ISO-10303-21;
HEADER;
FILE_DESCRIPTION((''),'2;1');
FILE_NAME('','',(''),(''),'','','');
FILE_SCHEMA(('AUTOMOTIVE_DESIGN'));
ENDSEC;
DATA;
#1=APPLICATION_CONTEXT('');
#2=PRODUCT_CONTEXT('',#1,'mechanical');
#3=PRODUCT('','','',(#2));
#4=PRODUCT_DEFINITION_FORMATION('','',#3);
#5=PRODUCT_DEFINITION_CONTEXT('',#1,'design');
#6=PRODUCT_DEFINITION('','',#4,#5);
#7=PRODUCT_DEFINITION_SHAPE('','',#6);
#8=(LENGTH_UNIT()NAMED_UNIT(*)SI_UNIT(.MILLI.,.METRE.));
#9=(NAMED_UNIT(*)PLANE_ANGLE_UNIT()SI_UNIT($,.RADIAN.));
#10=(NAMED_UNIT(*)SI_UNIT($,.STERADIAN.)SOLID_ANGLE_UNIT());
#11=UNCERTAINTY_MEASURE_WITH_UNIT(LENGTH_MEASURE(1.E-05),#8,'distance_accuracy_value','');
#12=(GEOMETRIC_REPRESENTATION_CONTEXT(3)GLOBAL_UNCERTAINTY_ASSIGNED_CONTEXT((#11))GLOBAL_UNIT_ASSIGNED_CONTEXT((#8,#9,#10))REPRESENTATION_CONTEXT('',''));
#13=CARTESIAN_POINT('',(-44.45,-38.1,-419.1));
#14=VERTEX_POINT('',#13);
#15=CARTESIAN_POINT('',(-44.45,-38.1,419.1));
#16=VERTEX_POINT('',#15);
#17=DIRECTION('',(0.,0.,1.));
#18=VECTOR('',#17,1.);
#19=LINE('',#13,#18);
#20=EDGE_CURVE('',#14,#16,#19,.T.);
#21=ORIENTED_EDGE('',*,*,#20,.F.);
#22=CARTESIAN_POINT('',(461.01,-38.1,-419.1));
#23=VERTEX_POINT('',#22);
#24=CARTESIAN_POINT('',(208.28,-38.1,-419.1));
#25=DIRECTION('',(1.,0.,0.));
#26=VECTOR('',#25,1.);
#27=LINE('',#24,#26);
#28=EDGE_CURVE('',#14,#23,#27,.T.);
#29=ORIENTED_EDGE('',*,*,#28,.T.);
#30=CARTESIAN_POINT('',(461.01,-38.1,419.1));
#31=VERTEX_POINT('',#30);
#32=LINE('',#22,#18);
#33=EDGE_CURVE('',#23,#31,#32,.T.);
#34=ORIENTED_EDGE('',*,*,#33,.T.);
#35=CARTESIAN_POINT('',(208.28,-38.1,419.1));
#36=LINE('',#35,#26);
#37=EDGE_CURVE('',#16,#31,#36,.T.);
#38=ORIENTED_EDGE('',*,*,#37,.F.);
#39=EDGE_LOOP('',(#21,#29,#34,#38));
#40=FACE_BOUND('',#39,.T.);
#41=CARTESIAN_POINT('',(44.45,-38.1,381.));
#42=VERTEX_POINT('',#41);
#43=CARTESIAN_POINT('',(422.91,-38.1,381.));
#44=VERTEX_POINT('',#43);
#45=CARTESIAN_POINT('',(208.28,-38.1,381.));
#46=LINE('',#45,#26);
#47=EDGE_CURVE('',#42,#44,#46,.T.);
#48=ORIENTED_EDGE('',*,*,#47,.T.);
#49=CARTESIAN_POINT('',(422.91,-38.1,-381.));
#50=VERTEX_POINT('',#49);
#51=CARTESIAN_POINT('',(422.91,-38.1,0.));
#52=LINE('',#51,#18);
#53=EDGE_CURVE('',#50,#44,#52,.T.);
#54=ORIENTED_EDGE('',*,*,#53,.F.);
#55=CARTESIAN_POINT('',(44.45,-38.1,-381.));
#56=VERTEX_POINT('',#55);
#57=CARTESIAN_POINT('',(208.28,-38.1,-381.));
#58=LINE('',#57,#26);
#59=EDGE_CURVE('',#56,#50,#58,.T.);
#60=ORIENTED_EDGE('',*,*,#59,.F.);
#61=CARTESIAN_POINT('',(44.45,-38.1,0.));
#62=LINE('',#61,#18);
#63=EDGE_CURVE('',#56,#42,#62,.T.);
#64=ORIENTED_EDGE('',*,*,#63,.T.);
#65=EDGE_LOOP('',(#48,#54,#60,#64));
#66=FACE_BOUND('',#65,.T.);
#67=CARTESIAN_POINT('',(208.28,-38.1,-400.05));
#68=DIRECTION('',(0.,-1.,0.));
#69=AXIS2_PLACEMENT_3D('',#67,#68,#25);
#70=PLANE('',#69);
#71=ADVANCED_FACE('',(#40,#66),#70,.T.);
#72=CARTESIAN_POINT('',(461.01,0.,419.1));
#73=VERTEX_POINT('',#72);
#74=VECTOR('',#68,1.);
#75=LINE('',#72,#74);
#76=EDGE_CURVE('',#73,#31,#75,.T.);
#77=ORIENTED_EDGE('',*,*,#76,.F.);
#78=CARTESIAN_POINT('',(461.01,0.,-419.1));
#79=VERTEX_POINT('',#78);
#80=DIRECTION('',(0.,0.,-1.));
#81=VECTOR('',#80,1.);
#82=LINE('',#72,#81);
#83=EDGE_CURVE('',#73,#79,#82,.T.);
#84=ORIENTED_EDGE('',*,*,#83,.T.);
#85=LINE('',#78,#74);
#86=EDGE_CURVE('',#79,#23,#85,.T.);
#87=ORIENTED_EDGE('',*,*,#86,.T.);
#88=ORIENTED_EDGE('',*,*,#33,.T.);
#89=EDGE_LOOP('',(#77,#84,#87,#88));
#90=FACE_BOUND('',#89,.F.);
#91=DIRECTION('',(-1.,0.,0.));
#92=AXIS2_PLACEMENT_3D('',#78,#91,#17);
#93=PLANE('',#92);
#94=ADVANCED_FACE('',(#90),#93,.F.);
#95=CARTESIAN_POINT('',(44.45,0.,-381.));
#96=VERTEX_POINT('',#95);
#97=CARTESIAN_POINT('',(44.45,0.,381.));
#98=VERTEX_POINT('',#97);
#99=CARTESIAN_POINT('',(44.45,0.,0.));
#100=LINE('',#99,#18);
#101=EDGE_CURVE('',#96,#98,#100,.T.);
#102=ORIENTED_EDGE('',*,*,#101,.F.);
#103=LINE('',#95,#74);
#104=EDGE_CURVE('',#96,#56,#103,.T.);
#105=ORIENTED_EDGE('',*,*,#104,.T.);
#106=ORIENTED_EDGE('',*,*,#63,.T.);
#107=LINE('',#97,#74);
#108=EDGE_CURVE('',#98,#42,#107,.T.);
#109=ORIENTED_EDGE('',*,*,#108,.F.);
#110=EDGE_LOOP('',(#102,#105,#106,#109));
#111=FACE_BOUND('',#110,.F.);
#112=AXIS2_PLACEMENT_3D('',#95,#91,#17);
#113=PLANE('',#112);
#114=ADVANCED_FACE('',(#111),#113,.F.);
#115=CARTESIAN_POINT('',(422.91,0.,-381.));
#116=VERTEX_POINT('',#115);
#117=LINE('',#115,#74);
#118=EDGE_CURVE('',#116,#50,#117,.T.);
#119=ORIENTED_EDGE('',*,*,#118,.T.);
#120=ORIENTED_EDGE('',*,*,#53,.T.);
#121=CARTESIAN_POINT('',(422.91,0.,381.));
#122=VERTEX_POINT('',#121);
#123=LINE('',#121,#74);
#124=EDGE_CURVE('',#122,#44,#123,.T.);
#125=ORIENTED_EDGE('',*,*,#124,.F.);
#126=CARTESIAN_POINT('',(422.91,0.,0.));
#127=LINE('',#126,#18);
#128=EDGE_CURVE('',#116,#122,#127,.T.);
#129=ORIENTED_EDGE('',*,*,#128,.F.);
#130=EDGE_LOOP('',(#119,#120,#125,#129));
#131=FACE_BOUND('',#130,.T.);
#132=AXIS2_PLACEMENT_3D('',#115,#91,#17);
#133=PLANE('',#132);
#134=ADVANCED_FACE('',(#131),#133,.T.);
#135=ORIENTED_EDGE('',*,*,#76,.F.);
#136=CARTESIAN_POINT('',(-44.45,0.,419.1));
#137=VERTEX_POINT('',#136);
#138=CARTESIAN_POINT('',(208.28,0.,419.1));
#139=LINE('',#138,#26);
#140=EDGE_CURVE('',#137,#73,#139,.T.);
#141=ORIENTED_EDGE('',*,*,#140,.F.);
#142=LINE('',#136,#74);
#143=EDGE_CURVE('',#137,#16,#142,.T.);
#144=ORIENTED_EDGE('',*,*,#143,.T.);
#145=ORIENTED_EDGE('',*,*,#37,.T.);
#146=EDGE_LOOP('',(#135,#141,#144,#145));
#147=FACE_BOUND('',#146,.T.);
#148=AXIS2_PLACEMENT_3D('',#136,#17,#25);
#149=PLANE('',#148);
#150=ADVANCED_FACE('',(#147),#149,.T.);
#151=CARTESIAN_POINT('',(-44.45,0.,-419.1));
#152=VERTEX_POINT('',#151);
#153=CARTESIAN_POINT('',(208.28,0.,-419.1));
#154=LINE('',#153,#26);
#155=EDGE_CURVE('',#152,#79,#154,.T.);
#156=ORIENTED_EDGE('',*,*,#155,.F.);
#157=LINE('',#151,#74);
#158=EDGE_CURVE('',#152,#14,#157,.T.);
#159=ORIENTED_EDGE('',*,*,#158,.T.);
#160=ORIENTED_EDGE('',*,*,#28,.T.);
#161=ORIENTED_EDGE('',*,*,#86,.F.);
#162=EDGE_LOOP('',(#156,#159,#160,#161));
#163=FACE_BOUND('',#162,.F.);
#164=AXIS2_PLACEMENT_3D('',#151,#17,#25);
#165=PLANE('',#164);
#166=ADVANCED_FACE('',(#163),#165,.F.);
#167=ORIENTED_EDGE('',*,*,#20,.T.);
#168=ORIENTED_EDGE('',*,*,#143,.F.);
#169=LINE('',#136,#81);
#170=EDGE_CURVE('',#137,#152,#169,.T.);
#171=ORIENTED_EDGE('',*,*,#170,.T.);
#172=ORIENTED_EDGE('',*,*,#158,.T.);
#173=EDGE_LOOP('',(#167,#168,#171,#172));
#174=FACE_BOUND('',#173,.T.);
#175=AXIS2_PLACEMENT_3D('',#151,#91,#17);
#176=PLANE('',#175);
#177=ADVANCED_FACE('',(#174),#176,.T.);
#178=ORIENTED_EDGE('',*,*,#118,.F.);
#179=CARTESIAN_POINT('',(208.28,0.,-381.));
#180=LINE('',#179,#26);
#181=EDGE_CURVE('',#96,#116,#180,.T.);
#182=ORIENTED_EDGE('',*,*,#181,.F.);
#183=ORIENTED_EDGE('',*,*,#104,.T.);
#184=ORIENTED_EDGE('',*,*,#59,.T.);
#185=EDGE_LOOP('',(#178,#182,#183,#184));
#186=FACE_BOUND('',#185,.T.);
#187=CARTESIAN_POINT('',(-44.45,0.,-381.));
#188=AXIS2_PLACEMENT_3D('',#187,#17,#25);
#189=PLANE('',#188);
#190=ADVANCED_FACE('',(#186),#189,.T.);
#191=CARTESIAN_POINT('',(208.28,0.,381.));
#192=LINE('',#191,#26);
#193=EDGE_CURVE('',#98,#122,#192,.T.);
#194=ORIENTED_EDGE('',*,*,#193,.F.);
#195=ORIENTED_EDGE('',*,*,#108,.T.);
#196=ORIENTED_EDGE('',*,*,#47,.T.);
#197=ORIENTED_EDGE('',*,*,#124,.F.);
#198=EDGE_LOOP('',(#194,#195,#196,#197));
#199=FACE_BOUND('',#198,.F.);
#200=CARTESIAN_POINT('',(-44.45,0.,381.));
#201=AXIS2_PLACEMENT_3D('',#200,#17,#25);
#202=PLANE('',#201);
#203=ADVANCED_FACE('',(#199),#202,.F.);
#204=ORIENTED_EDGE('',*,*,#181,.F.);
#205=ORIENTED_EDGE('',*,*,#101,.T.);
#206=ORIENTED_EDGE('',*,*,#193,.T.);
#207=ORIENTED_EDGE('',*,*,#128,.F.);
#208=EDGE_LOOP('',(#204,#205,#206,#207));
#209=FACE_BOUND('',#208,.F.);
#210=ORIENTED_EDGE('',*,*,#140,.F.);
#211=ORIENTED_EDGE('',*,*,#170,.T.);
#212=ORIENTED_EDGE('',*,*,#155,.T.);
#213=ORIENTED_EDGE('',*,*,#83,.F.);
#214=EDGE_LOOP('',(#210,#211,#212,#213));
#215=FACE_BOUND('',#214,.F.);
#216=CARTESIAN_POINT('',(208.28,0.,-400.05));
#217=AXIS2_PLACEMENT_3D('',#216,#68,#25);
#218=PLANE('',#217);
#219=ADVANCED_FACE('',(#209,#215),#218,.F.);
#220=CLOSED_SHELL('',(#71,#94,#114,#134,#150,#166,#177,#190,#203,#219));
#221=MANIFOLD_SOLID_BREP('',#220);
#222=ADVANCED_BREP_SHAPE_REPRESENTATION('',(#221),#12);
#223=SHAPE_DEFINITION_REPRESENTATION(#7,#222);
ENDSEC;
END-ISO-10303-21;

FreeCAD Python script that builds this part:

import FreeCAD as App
import Part
import Sketcher
Q = App.Units.Quantity

doc = App.newDocument("Part")
body = doc.addObject("PartDesign::Body", "Body")

sketch1 = body.newObject("Sketcher::SketchObject", "Sketch")
sketch1.AttachmentSupport = (doc.getObject("XZ_Plane"), [""])
sketch1.MapMode = "FlatFace"
sketch1.addGeometry([
    Part.LineSegment(App.Vector(-44, 381, 0), App.Vector(-44, -381, 0)),
    Part.LineSegment(App.Vector(-44, -381, 0), App.Vector(44, -381, 0)),
    Part.LineSegment(App.Vector(44, -381, 0), App.Vector(44, 381, 0)),
    Part.LineSegment(App.Vector(44, 381, 0), App.Vector(-44, 381, 0)),
], False)
sketch1.addConstraint([
    Sketcher.Constraint("Coincident", 0, 2, 1, 1),
    Sketcher.Constraint("Coincident", 1, 2, 2, 1),
    Sketcher.Constraint("Coincident", 2, 2, 3, 1),
    Sketcher.Constraint("Coincident", 3, 2, 0, 1),
    Sketcher.Constraint("Vertical", 0),
    Sketcher.Constraint("Horizontal", 1),
    Sketcher.Constraint("Vertical", 2),
    Sketcher.Constraint("Horizontal", 3),
    Sketcher.Constraint("Symmetric", 0, 2, 2, 2, -1, 1),
    Sketcher.Constraint("DistanceY", 0, 2, 0, 1, Q("30 in")),
    Sketcher.Constraint("DistanceX", 1, 1, 1, 2, Q("3.5 in")),
])
pad1 = body.newObject("PartDesign::Pad", "Pad")
pad1.Profile = sketch1
pad1.Length = Q("1.5 in")

sketch2 = body.newObject("Sketcher::SketchObject", "Sketch001")
sketch2.AttachmentSupport = (doc.getObject("XZ_Plane"), [""])
sketch2.MapMode = "FlatFace"
sketch2.addGeometry([
    Part.LineSegment(App.Vector(-44, 419, 0), App.Vector(-44, 381, 0)),
    Part.LineSegment(App.Vector(-44, 381, 0), App.Vector(461, 381, 0)),
    Part.LineSegment(App.Vector(461, 381, 0), App.Vector(461, 419, 0)),
    Part.LineSegment(App.Vector(461, 419, 0), App.Vector(-44, 419, 0)),
], False)
sketch2.addConstraint([
    Sketcher.Constraint("Coincident", 0, 2, 1, 1),
    Sketcher.Constraint("Coincident", 1, 2, 2, 1),
    Sketcher.Constraint("Coincident", 2, 2, 3, 1),
    Sketcher.Constraint("Coincident", 3, 2, 0, 1),
    Sketcher.Constraint("Vertical", 0),
    Sketcher.Constraint("Horizontal", 1),
    Sketcher.Constraint("Vertical", 2),
    Sketcher.Constraint("Horizontal", 3),
    Sketcher.Constraint("DistanceX", 1, 1, 1, 2, Q("19.9 in")),
    Sketcher.Constraint("DistanceY", 0, 2, 0, 1, Q("1.5 in")),
    Sketcher.Constraint("DistanceY", -1, 1, 0, 2, Q("15 in")),
    Sketcher.Constraint("DistanceX", 0, 2, -1, 1, Q("1.75 in")),
])
pad2 = body.newObject("PartDesign::Pad", "Pad001")
pad2.Profile = sketch2
pad2.Length = Q("1.5 in")

sketch3 = body.newObject("Sketcher::SketchObject", "Sketch002")
sketch3.AttachmentSupport = (doc.getObject("XZ_Plane"), [""])
sketch3.MapMode = "FlatFace"
sketch3.addGeometry([
    Part.LineSegment(App.Vector(423, 381, 0), App.Vector(423, -381, 0)),
    Part.LineSegment(App.Vector(423, -381, 0), App.Vector(461, -381, 0)),
    Part.LineSegment(App.Vector(461, -381, 0), App.Vector(461, 381, 0)),
    Part.LineSegment(App.Vector(461, 381, 0), App.Vector(423, 381, 0)),
], False)
sketch3.addConstraint([
    Sketcher.Constraint("Coincident", 0, 2, 1, 1),
    Sketcher.Constraint("Coincident", 1, 2, 2, 1),
    Sketcher.Constraint("Coincident", 2, 2, 3, 1),
    Sketcher.Constraint("Coincident", 3, 2, 0, 1),
    Sketcher.Constraint("Vertical", 0),
    Sketcher.Constraint("Horizontal", 1),
    Sketcher.Constraint("Vertical", 2),
    Sketcher.Constraint("Horizontal", 3),
    Sketcher.Constraint("DistanceY", 0, 2, 0, 1, Q("30 in")),
    Sketcher.Constraint("DistanceX", 1, 1, 1, 2, Q("1.5 in")),
    Sketcher.Constraint("DistanceY", 0, 2, -1, 1, Q("15 in")),
    Sketcher.Constraint("DistanceX", -1, 1, 0, 2, Q("16.65 in")),
])
pad3 = body.newObject("PartDesign::Pad", "Pad002")
pad3.Profile = sketch3
pad3.Length = Q("1.5 in")

sketch4 = body.newObject("Sketcher::SketchObject", "Sketch003")
sketch4.AttachmentSupport = (doc.getObject("XZ_Plane"), [""])
sketch4.MapMode = "FlatFace"
sketch4.addGeometry([
    Part.LineSegment(App.Vector(-44, -381, 0), App.Vector(-44, -419, 0)),
    Part.LineSegment(App.Vector(-44, -419, 0), App.Vector(461, -419, 0)),
    Part.LineSegment(App.Vector(461, -419, 0), App.Vector(461, -381, 0)),
    Part.LineSegment(App.Vector(461, -381, 0), App.Vector(-44, -381, 0)),
], False)
sketch4.addConstraint([
    Sketcher.Constraint("Coincident", 0, 2, 1, 1),
    Sketcher.Constraint("Coincident", 1, 2, 2, 1),
    Sketcher.Constraint("Coincident", 2, 2, 3, 1),
    Sketcher.Constraint("Coincident", 3, 2, 0, 1),
    Sketcher.Constraint("Vertical", 0),
    Sketcher.Constraint("Horizontal", 1),
    Sketcher.Constraint("Vertical", 2),
    Sketcher.Constraint("Horizontal", 3),
    Sketcher.Constraint("DistanceX", 1, 1, 1, 2, Q("19.9 in")),
    Sketcher.Constraint("DistanceY", 0, 2, 0, 1, Q("1.5 in")),
    Sketcher.Constraint("DistanceY", 2, 2, -1, 1, Q("15 in")),
    Sketcher.Constraint("DistanceX", 0, 2, -1, 1, Q("1.75 in")),
])
pad4 = body.newObject("PartDesign::Pad", "Pad003")
pad4.Profile = sketch4
pad4.Length = Q("1.5 in")

doc.recompute()
